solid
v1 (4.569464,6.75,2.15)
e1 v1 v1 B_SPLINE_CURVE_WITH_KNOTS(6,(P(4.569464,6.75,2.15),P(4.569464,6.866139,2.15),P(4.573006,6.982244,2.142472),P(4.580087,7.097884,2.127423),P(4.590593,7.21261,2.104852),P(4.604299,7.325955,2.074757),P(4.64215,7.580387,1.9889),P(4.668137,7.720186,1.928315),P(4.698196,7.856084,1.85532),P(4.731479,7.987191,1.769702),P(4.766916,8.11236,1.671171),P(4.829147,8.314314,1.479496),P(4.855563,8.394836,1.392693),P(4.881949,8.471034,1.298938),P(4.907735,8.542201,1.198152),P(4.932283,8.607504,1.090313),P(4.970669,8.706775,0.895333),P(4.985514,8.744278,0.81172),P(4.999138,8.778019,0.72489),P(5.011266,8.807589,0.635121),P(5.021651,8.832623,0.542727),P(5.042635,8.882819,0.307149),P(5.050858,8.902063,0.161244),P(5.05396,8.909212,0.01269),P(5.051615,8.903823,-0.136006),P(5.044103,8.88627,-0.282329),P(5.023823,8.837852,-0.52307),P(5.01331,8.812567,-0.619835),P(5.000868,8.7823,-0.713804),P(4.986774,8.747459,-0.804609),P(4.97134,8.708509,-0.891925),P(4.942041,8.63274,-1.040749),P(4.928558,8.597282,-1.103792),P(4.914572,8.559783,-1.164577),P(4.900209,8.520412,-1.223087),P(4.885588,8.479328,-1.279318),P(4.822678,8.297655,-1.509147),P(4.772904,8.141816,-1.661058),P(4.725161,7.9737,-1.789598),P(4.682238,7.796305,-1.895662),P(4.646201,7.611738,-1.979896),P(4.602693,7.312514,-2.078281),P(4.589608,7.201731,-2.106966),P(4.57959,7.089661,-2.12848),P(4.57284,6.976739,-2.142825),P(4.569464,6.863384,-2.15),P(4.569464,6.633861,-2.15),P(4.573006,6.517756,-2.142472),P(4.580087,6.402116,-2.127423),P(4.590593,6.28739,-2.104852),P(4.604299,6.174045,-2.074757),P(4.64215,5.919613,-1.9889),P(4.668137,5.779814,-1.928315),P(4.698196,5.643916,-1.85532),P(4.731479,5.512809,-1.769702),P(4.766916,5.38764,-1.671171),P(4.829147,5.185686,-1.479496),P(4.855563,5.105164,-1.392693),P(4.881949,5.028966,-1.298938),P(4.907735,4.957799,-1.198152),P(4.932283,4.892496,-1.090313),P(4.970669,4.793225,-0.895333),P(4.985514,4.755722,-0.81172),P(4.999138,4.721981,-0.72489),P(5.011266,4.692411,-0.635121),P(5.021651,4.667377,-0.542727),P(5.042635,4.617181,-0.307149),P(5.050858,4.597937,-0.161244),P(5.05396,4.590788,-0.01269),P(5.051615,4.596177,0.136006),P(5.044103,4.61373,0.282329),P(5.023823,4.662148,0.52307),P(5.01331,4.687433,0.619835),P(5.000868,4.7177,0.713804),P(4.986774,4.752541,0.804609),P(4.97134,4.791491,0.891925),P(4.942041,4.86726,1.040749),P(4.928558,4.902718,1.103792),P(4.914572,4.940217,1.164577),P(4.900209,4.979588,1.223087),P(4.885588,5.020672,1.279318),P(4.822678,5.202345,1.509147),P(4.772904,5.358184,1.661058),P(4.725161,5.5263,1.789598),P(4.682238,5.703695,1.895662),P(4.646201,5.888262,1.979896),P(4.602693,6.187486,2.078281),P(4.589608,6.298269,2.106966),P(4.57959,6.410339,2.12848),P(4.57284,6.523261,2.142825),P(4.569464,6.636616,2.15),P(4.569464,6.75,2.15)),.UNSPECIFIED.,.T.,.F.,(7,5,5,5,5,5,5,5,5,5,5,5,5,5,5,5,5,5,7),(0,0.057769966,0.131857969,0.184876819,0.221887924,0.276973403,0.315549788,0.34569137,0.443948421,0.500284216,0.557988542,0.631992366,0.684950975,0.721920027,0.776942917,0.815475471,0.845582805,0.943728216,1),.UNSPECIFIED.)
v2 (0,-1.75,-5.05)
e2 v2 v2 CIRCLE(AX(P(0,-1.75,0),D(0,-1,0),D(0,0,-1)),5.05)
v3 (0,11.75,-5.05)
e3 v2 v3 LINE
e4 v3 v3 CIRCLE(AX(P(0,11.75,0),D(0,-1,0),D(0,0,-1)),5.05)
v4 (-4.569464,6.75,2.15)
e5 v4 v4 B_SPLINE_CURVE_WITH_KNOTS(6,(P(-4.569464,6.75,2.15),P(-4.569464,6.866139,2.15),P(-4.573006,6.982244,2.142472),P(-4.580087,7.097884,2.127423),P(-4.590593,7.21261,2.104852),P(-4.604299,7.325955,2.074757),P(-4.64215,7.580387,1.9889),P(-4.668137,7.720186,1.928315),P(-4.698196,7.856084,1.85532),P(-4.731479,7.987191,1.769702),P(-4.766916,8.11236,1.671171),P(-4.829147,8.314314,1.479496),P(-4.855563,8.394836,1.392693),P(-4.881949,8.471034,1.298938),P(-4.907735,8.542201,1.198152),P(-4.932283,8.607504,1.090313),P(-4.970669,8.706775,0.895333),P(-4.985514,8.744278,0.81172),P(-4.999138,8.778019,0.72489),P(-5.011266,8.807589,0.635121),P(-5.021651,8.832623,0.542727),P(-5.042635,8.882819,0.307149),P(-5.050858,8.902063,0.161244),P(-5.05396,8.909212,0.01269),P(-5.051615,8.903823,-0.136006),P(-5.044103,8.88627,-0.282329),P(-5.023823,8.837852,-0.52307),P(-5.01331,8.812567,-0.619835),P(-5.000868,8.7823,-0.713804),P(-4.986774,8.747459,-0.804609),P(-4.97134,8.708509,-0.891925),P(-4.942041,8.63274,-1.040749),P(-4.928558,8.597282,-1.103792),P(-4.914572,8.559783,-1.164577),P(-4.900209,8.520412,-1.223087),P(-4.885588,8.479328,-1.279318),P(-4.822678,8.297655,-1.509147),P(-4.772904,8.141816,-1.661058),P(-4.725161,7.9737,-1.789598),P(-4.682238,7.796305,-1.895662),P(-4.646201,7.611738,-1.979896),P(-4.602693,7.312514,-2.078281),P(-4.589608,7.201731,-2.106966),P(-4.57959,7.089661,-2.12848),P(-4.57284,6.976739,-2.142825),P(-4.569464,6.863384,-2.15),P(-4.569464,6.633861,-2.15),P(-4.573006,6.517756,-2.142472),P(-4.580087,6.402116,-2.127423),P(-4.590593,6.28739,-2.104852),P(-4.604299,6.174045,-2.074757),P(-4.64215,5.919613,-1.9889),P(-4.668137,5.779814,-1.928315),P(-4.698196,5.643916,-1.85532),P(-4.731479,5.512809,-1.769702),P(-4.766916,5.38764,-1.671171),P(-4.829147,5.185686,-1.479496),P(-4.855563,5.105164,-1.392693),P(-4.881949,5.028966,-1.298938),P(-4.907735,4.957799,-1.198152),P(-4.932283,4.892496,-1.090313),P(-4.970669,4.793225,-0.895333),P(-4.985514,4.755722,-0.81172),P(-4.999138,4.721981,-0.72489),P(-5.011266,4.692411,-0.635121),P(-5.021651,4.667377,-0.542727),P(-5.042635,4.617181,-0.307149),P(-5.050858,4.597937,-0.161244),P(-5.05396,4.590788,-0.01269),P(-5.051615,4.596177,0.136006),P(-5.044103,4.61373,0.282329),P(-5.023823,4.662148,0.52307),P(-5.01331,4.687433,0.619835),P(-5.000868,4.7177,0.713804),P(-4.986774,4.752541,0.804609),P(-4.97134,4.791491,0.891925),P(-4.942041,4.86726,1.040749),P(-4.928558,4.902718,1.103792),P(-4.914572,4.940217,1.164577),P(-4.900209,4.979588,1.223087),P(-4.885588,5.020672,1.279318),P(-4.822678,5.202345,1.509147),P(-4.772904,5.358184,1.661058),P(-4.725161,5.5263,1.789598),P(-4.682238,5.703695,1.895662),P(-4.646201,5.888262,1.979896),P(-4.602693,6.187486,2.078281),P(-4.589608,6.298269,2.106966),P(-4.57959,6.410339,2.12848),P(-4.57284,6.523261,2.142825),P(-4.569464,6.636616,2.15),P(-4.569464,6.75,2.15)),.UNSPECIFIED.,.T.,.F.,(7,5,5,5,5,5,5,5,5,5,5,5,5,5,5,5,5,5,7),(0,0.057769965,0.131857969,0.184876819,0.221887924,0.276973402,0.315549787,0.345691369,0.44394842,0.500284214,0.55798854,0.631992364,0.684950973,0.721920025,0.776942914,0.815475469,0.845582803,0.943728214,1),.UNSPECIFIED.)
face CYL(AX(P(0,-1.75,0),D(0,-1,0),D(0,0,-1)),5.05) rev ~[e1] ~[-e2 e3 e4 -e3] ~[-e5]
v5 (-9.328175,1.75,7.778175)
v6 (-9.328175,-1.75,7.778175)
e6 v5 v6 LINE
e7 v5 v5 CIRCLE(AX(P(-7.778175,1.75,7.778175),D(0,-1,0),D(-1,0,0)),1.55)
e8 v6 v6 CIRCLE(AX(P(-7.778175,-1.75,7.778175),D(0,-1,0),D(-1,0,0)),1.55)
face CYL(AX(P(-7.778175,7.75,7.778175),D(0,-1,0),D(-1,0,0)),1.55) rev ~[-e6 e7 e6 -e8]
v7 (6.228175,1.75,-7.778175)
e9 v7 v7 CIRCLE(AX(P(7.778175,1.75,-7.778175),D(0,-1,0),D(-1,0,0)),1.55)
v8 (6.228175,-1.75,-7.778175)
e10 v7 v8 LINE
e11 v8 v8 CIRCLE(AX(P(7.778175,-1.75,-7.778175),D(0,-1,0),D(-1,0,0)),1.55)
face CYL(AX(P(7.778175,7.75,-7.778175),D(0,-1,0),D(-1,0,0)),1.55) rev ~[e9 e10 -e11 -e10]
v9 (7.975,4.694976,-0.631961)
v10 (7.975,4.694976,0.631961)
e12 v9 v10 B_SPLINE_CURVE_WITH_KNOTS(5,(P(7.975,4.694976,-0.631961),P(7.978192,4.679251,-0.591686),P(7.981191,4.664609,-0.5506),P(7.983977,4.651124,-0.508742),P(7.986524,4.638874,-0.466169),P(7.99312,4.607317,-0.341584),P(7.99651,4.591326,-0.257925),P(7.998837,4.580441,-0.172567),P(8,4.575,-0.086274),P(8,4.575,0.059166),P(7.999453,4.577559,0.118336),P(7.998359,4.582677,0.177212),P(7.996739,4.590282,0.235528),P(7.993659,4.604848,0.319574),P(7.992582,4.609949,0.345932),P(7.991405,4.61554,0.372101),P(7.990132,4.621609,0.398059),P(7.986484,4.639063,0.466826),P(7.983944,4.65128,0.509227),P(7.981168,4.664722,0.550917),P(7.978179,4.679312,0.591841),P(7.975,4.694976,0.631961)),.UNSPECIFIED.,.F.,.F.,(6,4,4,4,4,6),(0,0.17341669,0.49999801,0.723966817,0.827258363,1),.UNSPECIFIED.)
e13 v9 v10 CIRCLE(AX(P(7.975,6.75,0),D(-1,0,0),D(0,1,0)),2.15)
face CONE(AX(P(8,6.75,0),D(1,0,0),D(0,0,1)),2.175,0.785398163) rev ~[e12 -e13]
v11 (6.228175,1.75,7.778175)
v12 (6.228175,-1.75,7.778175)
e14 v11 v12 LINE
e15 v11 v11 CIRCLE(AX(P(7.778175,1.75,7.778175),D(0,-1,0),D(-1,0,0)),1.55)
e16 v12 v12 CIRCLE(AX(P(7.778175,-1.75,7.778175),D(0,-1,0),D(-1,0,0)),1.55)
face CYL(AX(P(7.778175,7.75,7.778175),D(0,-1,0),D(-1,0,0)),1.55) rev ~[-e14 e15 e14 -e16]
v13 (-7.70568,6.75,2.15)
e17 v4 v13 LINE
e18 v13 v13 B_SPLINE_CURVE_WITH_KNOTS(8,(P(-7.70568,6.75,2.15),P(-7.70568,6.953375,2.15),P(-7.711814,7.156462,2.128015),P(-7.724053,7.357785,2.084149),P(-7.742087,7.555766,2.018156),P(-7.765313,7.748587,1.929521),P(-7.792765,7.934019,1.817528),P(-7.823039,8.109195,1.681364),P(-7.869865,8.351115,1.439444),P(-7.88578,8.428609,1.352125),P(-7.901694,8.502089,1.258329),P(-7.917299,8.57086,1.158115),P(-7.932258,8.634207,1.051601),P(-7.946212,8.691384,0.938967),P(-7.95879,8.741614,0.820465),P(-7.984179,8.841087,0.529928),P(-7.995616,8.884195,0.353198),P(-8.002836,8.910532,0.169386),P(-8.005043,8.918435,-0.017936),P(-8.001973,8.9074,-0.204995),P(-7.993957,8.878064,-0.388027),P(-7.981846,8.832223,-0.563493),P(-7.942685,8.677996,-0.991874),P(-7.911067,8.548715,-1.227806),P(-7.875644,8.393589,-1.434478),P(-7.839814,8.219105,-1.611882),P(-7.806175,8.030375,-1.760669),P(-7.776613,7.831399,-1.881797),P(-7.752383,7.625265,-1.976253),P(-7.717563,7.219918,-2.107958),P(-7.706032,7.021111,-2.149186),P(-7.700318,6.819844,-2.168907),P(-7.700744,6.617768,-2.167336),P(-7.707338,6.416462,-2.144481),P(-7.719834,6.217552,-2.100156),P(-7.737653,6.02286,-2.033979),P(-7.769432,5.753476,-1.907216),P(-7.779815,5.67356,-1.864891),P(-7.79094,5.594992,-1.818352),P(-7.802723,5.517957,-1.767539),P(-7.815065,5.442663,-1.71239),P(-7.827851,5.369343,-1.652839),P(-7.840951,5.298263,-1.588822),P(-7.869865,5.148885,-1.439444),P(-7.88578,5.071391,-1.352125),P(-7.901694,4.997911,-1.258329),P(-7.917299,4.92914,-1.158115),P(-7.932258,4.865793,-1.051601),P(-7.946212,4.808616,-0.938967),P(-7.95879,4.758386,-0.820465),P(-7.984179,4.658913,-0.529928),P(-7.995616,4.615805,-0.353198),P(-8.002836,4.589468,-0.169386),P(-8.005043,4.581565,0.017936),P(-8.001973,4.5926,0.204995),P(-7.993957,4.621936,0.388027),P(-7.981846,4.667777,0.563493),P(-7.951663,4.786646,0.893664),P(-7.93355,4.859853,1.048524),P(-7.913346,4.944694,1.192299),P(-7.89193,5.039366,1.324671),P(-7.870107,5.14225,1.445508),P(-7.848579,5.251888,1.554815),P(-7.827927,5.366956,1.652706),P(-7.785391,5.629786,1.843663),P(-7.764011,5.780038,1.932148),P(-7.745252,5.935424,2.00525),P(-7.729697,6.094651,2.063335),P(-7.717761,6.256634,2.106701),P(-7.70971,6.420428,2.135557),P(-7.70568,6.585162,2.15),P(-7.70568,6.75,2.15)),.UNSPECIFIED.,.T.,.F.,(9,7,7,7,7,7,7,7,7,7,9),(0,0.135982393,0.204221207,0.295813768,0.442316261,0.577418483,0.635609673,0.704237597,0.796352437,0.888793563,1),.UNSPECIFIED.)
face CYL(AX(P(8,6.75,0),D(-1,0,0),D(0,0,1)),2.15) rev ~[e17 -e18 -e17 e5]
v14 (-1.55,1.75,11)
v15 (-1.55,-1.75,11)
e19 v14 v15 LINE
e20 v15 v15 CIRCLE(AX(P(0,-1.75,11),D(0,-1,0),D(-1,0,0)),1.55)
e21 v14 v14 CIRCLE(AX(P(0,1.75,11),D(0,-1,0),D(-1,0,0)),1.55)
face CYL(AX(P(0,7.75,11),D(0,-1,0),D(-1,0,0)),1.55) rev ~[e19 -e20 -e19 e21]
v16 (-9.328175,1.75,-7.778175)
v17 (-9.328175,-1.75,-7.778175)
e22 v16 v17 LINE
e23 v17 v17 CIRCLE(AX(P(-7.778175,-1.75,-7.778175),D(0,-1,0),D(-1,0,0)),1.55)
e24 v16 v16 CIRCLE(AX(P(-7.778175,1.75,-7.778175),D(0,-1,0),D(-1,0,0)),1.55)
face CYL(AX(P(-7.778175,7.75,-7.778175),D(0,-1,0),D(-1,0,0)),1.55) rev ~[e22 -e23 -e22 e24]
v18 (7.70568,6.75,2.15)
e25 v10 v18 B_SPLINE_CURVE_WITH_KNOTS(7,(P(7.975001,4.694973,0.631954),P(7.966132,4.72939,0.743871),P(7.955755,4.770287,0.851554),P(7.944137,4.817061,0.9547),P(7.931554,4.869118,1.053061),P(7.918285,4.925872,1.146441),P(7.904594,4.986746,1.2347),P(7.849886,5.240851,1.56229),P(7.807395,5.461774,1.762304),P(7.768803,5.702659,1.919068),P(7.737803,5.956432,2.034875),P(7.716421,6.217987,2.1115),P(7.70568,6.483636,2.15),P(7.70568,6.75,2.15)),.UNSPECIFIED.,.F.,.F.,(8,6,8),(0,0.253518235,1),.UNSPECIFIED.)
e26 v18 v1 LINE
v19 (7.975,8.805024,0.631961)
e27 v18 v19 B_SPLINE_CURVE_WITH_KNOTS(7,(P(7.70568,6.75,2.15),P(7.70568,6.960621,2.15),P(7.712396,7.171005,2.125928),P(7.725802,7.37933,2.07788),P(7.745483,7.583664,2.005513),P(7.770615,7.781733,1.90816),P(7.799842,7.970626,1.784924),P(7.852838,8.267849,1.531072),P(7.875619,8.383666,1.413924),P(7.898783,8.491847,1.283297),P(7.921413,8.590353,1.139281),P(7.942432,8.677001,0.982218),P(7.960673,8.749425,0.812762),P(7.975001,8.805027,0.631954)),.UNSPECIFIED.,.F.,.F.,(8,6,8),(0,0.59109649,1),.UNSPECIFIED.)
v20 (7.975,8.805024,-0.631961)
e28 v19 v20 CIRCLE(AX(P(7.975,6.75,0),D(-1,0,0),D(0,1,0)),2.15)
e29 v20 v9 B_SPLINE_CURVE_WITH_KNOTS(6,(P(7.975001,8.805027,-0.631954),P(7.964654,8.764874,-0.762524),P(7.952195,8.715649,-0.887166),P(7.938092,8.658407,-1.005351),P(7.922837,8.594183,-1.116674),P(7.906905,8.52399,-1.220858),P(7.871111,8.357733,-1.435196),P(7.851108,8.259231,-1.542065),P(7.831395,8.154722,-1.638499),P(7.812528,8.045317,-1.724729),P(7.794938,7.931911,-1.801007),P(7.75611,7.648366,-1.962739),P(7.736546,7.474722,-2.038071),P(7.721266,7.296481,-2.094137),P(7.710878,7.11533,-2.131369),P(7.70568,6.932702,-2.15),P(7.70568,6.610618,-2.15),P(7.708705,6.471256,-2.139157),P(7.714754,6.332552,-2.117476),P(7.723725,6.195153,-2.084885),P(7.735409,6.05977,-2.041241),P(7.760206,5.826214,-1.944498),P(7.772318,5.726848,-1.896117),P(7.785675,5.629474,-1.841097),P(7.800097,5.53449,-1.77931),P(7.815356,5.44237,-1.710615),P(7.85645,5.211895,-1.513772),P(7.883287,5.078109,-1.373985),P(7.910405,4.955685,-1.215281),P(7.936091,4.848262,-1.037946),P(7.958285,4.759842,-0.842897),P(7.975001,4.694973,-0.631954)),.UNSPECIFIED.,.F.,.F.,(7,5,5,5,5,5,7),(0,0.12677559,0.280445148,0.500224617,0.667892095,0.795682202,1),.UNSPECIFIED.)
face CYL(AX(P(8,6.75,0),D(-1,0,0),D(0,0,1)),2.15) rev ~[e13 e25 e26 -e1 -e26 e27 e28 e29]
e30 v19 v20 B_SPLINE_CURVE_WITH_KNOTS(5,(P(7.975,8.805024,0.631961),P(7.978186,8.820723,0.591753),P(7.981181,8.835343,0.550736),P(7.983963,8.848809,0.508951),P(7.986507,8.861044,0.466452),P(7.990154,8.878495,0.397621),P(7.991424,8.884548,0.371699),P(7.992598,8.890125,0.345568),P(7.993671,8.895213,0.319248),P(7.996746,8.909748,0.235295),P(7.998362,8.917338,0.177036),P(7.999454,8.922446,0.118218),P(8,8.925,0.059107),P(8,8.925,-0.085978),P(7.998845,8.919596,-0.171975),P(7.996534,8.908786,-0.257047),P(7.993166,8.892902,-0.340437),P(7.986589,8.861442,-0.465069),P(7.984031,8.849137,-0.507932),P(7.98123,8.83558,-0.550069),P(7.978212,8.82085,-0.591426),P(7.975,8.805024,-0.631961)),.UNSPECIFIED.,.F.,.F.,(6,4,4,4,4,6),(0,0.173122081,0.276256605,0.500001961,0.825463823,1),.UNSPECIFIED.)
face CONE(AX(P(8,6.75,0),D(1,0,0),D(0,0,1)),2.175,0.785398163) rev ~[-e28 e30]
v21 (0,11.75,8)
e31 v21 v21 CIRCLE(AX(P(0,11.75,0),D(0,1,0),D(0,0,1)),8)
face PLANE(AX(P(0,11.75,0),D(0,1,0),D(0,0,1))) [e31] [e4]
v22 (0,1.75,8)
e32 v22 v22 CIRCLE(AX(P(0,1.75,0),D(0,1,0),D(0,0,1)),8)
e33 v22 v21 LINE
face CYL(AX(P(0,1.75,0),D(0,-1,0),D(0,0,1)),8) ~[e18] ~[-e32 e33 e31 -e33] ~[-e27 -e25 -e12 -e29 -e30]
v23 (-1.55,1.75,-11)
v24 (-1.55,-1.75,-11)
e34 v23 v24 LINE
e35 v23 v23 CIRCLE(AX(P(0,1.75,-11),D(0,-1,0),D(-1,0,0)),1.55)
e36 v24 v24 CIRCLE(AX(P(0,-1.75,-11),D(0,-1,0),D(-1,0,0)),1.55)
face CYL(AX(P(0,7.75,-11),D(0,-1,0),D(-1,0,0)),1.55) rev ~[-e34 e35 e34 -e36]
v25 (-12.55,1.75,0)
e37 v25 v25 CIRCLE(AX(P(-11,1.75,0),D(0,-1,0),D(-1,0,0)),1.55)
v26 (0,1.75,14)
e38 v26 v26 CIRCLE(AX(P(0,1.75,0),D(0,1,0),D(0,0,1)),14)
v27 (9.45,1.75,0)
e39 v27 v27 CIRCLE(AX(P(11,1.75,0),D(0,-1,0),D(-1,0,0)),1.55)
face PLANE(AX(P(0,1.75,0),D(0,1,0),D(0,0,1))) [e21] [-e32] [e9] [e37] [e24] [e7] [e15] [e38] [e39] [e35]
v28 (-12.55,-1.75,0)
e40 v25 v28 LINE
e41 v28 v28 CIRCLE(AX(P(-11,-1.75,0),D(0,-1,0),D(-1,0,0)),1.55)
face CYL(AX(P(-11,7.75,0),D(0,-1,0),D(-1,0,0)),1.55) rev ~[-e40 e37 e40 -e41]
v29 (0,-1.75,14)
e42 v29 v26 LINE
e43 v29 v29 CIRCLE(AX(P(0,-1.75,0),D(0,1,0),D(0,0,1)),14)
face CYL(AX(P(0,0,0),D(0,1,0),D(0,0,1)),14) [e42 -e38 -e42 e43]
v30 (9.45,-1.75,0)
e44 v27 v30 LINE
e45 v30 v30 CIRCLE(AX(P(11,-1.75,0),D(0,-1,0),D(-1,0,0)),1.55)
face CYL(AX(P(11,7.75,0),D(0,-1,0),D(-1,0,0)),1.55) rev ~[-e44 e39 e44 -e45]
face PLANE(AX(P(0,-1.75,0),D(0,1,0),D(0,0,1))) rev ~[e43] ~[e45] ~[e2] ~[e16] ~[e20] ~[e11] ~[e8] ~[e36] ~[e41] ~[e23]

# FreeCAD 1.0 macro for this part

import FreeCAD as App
import Part
import Sketcher

doc = App.newDocument("Part")
body = doc.addObject("PartDesign::Body", "Body")

sketch1 = doc.addObject("Sketcher::SketchObject", "Sketch")
body.addObject(sketch1)
sketch1.AttachmentSupport = (doc.XZ_Plane, [""])
sketch1.MapMode = "FlatFace"
sketch1.addGeometry(Part.Circle(App.Vector(0, 0, 0), App.Vector(0, 0, 1), 14), False)
sketch1.addConstraint(Sketcher.Constraint("Coincident", 0, 3, -1, 1))
sketch1.addConstraint(Sketcher.Constraint("Diameter", 0, 28.0))
pad1 = doc.addObject("PartDesign::Pad", "Pad")
body.addObject(pad1)
pad1.Profile = sketch1
pad1.Length = 3.5
pad1.Midplane = True

sketch2 = doc.addObject("Sketcher::SketchObject", "Sketch001")
body.addObject(sketch2)
sketch2.AttachmentSupport = (doc.XZ_Plane, [""])
sketch2.MapMode = "FlatFace"
sketch2.AttachmentOffset = App.Placement(App.Vector(0, 0, -1.75), App.Rotation())
sketch2.addGeometry(Part.Circle(App.Vector(-11, 0, 0), App.Vector(0, 0, 1), 1.55), False)
sketch2.addGeometry(Part.Circle(App.Vector(-7.778175, -7.778175, 0), App.Vector(0, 0, 1), 1.55), False)
sketch2.addGeometry(Part.Circle(App.Vector(0, -11, 0), App.Vector(0, 0, 1), 1.55), False)
sketch2.addGeometry(Part.Circle(App.Vector(7.778175, -7.778175, 0), App.Vector(0, 0, 1), 1.55), False)
sketch2.addGeometry(Part.Circle(App.Vector(11, 0, 0), App.Vector(0, 0, 1), 1.55), False)
sketch2.addGeometry(Part.Circle(App.Vector(7.778175, 7.778175, 0), App.Vector(0, 0, 1), 1.55), False)
sketch2.addGeometry(Part.Circle(App.Vector(0, 11, 0), App.Vector(0, 0, 1), 1.55), False)
sketch2.addGeometry(Part.Circle(App.Vector(-7.778175, 7.778175, 0), App.Vector(0, 0, 1), 1.55), False)
sketch2.addConstraint(Sketcher.Constraint("Equal", 0, 1))
sketch2.addConstraint(Sketcher.Constraint("Equal", 1, 2))
sketch2.addConstraint(Sketcher.Constraint("Equal", 2, 3))
sketch2.addConstraint(Sketcher.Constraint("Equal", 3, 4))
sketch2.addConstraint(Sketcher.Constraint("Equal", 4, 5))
sketch2.addConstraint(Sketcher.Constraint("Equal", 5, 6))
sketch2.addConstraint(Sketcher.Constraint("Equal", 6, 7))
sketch2.addConstraint(Sketcher.Constraint("Symmetric", 0, 3, 4, 3, -1, 1))
sketch2.addConstraint(Sketcher.Constraint("Symmetric", 1, 3, 5, 3, -1, 1))
sketch2.addConstraint(Sketcher.Constraint("Symmetric", 2, 3, 6, 3, -1, 1))
sketch2.addConstraint(Sketcher.Constraint("Symmetric", 3, 3, 7, 3, -1, 1))
sketch2.addConstraint(Sketcher.Constraint("Symmetric", 1, 3, 3, 3, -2))
sketch2.addConstraint(Sketcher.Constraint("PointOnObject", 0, 3, -1))
sketch2.addConstraint(Sketcher.Constraint("PointOnObject", 2, 3, -2))
sketch2.addConstraint(Sketcher.Constraint("Diameter", 0, 3.1))
sketch2.addConstraint(Sketcher.Constraint("DistanceX", 0, 3, -1, 1, 11.0))
sketch2.addConstraint(Sketcher.Constraint("DistanceY", 2, 3, -1, 1, 11.0))
sketch2.addConstraint(Sketcher.Constraint("DistanceX", 1, 3, 3, 3, 15.556349))
sketch2.addConstraint(Sketcher.Constraint("DistanceY", 3, 3, 5, 3, 15.556349))
doc.recompute()
hole = doc.addObject("PartDesign::Hole", "Hole")
body.addObject(hole)
hole.Profile = sketch2
hole.ThreadType = "None"
hole.Diameter = 3.1
hole.DepthType = "Dimension"
hole.Depth = 6
hole.DrillPoint = "Angled"
hole.DrillPointAngle = 118
hole.Reversed = True

sketch3 = doc.addObject("Sketcher::SketchObject", "Sketch002")
body.addObject(sketch3)
sketch3.AttachmentSupport = (doc.XZ_Plane, [""])
sketch3.MapMode = "FlatFace"
sketch3.AttachmentOffset = App.Placement(App.Vector(0, 0, -1.75), App.Rotation())
sketch3.addGeometry(Part.Circle(App.Vector(0, 0, 0), App.Vector(0, 0, 1), 8), False)
sketch3.addConstraint(Sketcher.Constraint("Coincident", 0, 3, -1, 1))
sketch3.addConstraint(Sketcher.Constraint("Diameter", 0, 16.0))
pad2 = doc.addObject("PartDesign::Pad", "Pad001")
body.addObject(pad2)
pad2.Profile = sketch3
pad2.Length = 10
pad2.Reversed = True

sketch4 = doc.addObject("Sketcher::SketchObject", "Sketch003")
body.addObject(sketch4)
sketch4.AttachmentSupport = (doc.XZ_Plane, [""])
sketch4.MapMode = "FlatFace"
sketch4.AttachmentOffset = App.Placement(App.Vector(0, 0, 1.75), App.Rotation())
sketch4.addGeometry(Part.Circle(App.Vector(0, 0, 0), App.Vector(0, 0, 1), 5.05), False)
sketch4.addConstraint(Sketcher.Constraint("Coincident", 0, 3, -1, 1))
sketch4.addConstraint(Sketcher.Constraint("Diameter", 0, 10.1))
pocket1 = doc.addObject("PartDesign::Pocket", "Pocket")
body.addObject(pocket1)
pocket1.Profile = sketch4
pocket1.Type = "ThroughAll"

sketch5 = doc.addObject("Sketcher::SketchObject", "Sketch004")
body.addObject(sketch5)
sketch5.AttachmentSupport = (doc.YZ_Plane, [""])
sketch5.MapMode = "FlatFace"
sketch5.AttachmentOffset = App.Placement(App.Vector(0, 0, 8), App.Rotation())
sketch5.addGeometry(Part.Circle(App.Vector(6.75, 0, 0), App.Vector(0, 0, 1), 2.15), False)
sketch5.addConstraint(Sketcher.Constraint("PointOnObject", 0, 3, -1))
sketch5.addConstraint(Sketcher.Constraint("Diameter", 0, 4.3))
sketch5.addConstraint(Sketcher.Constraint("DistanceX", -1, 1, 0, 3, 6.75))
doc.recompute()
hole2 = doc.addObject("PartDesign::Hole", "Hole001")
body.addObject(hole2)
hole2.Profile = sketch5
hole2.ThreadType = "None"
hole2.Diameter = 4.3
hole2.DepthType = "Dimension"
hole2.Depth = 25.4
hole2.DrillPoint = "Angled"
hole2.DrillPointAngle = 118
hole2.HoleCutType = "Countersink"
hole2.HoleCutDiameter = 4.35
hole2.HoleCutCountersinkAngle = 90

doc.recompute()
